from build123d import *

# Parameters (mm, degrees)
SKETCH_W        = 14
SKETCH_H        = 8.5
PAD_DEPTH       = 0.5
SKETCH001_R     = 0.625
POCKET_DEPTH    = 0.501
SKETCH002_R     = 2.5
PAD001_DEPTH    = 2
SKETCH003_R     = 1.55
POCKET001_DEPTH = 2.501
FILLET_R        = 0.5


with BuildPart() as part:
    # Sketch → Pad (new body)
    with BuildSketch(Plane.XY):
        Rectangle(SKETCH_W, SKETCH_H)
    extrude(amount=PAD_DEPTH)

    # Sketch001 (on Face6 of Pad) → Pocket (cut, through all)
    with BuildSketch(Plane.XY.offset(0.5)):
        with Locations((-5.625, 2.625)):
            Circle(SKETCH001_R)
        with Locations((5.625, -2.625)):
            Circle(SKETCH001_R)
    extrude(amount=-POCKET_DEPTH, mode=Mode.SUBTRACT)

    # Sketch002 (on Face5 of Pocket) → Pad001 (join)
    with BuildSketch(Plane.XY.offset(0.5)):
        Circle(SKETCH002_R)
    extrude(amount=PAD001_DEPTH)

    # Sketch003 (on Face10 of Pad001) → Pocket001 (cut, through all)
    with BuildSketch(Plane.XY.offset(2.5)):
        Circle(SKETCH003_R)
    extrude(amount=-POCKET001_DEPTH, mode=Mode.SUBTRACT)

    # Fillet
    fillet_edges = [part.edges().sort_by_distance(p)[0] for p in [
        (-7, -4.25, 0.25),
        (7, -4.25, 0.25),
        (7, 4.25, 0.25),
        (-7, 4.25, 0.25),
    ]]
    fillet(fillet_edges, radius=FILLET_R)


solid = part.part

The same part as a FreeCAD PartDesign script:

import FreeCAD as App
import Part
import Sketcher


def edges_at(feature, points):
    """Names of the edges that pass closest to the given points."""
    edges = feature.Shape.Edges
    near = lambda p: min(range(len(edges)), key=lambda i: edges[i].distToShape(Part.Vertex(*p))[0])
    return sorted({f"Edge{near(p) + 1}" for p in points})


def add_polygon(sketch, points):
    """Adds a closed chain of lines whose ends are joined by coincident constraints."""
    first, n = sketch.GeometryCount, len(points)
    for a, b in zip(points, points[1:] + points[:1]):
        sketch.addGeometry(Part.LineSegment(App.Vector(*a, 0), App.Vector(*b, 0)), False)
    for i in range(n):
        sketch.addConstraint(Sketcher.Constraint("Coincident", first + i, 2, first + (i + 1) % n, 1))

doc = App.newDocument("Part")
body = doc.addObject("PartDesign::Body", "Body")

# Sketch on XY plane
sketch1 = body.newObject("Sketcher::SketchObject", "Sketch")
sketch1.AttachmentSupport = (doc.getObject("XY_Plane"), [""])
sketch1.MapMode = "FlatFace"
add_polygon(sketch1, [(-7, 4), (-7, -4), (7, -4), (7, 4)])  # lines 0-3
sketch1.addConstraint([
    Sketcher.Constraint("Vertical", 0),
    Sketcher.Constraint("Horizontal", 1),
    Sketcher.Constraint("Vertical", 2),
    Sketcher.Constraint("Horizontal", 3),
    Sketcher.Constraint("Symmetric", 0, 2, 2, 2, -1, 1),
    Sketcher.Constraint("DistanceX", 1, 1, 1, 2, 14.0),
    Sketcher.Constraint("DistanceY", 0, 2, 0, 1, 8.5),
])
pad1 = body.newObject("PartDesign::Pad", "Pad")
pad1.Profile = sketch1
pad1.Length = 0.5

# Sketch on XY plane
sketch2 = body.newObject("Sketcher::SketchObject", "Sketch001")
sketch2.AttachmentSupport = (doc.getObject("XY_Plane"), [""])
sketch2.MapMode = "FlatFace"
sketch2.AttachmentOffset = App.Placement(App.Vector(0, 0, 0.5), App.Rotation())
sketch2.addGeometry([
    Part.Circle(App.Vector(-5.6, 2.6, 0), App.Vector(0, 0, 1), 0.6),
    Part.Circle(App.Vector(5.6, -2.6, 0), App.Vector(0, 0, 1), 0.6),
], False)
sketch2.addConstraint([
    Sketcher.Constraint("Equal", 0, 1),
    Sketcher.Constraint("Symmetric", 0, 3, 1, 3, -1, 1),
    Sketcher.Constraint("Diameter", 0, 1.25),
    Sketcher.Constraint("DistanceX", 0, 3, 1, 3, 11.25),
    Sketcher.Constraint("DistanceY", 1, 3, 0, 3, 5.25),
])
pocket1 = body.newObject("PartDesign::Pocket", "Pocket")
pocket1.Profile = sketch2
pocket1.Type = "ThroughAll"

# Sketch on XY plane
sketch3 = body.newObject("Sketcher::SketchObject", "Sketch002")
sketch3.AttachmentSupport = (doc.getObject("XY_Plane"), [""])
sketch3.MapMode = "FlatFace"
sketch3.AttachmentOffset = App.Placement(App.Vector(0, 0, 0.5), App.Rotation())
sketch3.addGeometry(Part.Circle(App.Vector(0, 0, 0), App.Vector(0, 0, 1), 2.5), False)
sketch3.addConstraint([
    Sketcher.Constraint("Coincident", 0, 3, -1, 1),
    Sketcher.Constraint("Diameter", 0, 5.0),
])
pad2 = body.newObject("PartDesign::Pad", "Pad001")
pad2.Profile = sketch3
pad2.Length = 2

# Sketch on XY plane
sketch4 = body.newObject("Sketcher::SketchObject", "Sketch003")
sketch4.AttachmentSupport = (doc.getObject("XY_Plane"), [""])
sketch4.MapMode = "FlatFace"
sketch4.AttachmentOffset = App.Placement(App.Vector(0, 0, 2.5), App.Rotation())
sketch4.addGeometry(Part.Circle(App.Vector(0, 0, 0), App.Vector(0, 0, 1), 1.6), False)
sketch4.addConstraint([
    Sketcher.Constraint("Coincident", 0, 3, -1, 1),
    Sketcher.Constraint("Diameter", 0, 3.1),
])
pocket2 = body.newObject("PartDesign::Pocket", "Pocket001")
pocket2.Profile = sketch4
pocket2.Type = "ThroughAll"
doc.recompute()

fillet = body.newObject("PartDesign::Fillet", "Fillet")
fillet.Base = (pocket2, edges_at(pocket2, [
    (-7, -4.25, 0.25),
    (7, -4.25, 0.25),
    (7, 4.25, 0.25),
    (-7, 4.25, 0.25),
]))
fillet.Radius = 0.5

doc.recompute()
